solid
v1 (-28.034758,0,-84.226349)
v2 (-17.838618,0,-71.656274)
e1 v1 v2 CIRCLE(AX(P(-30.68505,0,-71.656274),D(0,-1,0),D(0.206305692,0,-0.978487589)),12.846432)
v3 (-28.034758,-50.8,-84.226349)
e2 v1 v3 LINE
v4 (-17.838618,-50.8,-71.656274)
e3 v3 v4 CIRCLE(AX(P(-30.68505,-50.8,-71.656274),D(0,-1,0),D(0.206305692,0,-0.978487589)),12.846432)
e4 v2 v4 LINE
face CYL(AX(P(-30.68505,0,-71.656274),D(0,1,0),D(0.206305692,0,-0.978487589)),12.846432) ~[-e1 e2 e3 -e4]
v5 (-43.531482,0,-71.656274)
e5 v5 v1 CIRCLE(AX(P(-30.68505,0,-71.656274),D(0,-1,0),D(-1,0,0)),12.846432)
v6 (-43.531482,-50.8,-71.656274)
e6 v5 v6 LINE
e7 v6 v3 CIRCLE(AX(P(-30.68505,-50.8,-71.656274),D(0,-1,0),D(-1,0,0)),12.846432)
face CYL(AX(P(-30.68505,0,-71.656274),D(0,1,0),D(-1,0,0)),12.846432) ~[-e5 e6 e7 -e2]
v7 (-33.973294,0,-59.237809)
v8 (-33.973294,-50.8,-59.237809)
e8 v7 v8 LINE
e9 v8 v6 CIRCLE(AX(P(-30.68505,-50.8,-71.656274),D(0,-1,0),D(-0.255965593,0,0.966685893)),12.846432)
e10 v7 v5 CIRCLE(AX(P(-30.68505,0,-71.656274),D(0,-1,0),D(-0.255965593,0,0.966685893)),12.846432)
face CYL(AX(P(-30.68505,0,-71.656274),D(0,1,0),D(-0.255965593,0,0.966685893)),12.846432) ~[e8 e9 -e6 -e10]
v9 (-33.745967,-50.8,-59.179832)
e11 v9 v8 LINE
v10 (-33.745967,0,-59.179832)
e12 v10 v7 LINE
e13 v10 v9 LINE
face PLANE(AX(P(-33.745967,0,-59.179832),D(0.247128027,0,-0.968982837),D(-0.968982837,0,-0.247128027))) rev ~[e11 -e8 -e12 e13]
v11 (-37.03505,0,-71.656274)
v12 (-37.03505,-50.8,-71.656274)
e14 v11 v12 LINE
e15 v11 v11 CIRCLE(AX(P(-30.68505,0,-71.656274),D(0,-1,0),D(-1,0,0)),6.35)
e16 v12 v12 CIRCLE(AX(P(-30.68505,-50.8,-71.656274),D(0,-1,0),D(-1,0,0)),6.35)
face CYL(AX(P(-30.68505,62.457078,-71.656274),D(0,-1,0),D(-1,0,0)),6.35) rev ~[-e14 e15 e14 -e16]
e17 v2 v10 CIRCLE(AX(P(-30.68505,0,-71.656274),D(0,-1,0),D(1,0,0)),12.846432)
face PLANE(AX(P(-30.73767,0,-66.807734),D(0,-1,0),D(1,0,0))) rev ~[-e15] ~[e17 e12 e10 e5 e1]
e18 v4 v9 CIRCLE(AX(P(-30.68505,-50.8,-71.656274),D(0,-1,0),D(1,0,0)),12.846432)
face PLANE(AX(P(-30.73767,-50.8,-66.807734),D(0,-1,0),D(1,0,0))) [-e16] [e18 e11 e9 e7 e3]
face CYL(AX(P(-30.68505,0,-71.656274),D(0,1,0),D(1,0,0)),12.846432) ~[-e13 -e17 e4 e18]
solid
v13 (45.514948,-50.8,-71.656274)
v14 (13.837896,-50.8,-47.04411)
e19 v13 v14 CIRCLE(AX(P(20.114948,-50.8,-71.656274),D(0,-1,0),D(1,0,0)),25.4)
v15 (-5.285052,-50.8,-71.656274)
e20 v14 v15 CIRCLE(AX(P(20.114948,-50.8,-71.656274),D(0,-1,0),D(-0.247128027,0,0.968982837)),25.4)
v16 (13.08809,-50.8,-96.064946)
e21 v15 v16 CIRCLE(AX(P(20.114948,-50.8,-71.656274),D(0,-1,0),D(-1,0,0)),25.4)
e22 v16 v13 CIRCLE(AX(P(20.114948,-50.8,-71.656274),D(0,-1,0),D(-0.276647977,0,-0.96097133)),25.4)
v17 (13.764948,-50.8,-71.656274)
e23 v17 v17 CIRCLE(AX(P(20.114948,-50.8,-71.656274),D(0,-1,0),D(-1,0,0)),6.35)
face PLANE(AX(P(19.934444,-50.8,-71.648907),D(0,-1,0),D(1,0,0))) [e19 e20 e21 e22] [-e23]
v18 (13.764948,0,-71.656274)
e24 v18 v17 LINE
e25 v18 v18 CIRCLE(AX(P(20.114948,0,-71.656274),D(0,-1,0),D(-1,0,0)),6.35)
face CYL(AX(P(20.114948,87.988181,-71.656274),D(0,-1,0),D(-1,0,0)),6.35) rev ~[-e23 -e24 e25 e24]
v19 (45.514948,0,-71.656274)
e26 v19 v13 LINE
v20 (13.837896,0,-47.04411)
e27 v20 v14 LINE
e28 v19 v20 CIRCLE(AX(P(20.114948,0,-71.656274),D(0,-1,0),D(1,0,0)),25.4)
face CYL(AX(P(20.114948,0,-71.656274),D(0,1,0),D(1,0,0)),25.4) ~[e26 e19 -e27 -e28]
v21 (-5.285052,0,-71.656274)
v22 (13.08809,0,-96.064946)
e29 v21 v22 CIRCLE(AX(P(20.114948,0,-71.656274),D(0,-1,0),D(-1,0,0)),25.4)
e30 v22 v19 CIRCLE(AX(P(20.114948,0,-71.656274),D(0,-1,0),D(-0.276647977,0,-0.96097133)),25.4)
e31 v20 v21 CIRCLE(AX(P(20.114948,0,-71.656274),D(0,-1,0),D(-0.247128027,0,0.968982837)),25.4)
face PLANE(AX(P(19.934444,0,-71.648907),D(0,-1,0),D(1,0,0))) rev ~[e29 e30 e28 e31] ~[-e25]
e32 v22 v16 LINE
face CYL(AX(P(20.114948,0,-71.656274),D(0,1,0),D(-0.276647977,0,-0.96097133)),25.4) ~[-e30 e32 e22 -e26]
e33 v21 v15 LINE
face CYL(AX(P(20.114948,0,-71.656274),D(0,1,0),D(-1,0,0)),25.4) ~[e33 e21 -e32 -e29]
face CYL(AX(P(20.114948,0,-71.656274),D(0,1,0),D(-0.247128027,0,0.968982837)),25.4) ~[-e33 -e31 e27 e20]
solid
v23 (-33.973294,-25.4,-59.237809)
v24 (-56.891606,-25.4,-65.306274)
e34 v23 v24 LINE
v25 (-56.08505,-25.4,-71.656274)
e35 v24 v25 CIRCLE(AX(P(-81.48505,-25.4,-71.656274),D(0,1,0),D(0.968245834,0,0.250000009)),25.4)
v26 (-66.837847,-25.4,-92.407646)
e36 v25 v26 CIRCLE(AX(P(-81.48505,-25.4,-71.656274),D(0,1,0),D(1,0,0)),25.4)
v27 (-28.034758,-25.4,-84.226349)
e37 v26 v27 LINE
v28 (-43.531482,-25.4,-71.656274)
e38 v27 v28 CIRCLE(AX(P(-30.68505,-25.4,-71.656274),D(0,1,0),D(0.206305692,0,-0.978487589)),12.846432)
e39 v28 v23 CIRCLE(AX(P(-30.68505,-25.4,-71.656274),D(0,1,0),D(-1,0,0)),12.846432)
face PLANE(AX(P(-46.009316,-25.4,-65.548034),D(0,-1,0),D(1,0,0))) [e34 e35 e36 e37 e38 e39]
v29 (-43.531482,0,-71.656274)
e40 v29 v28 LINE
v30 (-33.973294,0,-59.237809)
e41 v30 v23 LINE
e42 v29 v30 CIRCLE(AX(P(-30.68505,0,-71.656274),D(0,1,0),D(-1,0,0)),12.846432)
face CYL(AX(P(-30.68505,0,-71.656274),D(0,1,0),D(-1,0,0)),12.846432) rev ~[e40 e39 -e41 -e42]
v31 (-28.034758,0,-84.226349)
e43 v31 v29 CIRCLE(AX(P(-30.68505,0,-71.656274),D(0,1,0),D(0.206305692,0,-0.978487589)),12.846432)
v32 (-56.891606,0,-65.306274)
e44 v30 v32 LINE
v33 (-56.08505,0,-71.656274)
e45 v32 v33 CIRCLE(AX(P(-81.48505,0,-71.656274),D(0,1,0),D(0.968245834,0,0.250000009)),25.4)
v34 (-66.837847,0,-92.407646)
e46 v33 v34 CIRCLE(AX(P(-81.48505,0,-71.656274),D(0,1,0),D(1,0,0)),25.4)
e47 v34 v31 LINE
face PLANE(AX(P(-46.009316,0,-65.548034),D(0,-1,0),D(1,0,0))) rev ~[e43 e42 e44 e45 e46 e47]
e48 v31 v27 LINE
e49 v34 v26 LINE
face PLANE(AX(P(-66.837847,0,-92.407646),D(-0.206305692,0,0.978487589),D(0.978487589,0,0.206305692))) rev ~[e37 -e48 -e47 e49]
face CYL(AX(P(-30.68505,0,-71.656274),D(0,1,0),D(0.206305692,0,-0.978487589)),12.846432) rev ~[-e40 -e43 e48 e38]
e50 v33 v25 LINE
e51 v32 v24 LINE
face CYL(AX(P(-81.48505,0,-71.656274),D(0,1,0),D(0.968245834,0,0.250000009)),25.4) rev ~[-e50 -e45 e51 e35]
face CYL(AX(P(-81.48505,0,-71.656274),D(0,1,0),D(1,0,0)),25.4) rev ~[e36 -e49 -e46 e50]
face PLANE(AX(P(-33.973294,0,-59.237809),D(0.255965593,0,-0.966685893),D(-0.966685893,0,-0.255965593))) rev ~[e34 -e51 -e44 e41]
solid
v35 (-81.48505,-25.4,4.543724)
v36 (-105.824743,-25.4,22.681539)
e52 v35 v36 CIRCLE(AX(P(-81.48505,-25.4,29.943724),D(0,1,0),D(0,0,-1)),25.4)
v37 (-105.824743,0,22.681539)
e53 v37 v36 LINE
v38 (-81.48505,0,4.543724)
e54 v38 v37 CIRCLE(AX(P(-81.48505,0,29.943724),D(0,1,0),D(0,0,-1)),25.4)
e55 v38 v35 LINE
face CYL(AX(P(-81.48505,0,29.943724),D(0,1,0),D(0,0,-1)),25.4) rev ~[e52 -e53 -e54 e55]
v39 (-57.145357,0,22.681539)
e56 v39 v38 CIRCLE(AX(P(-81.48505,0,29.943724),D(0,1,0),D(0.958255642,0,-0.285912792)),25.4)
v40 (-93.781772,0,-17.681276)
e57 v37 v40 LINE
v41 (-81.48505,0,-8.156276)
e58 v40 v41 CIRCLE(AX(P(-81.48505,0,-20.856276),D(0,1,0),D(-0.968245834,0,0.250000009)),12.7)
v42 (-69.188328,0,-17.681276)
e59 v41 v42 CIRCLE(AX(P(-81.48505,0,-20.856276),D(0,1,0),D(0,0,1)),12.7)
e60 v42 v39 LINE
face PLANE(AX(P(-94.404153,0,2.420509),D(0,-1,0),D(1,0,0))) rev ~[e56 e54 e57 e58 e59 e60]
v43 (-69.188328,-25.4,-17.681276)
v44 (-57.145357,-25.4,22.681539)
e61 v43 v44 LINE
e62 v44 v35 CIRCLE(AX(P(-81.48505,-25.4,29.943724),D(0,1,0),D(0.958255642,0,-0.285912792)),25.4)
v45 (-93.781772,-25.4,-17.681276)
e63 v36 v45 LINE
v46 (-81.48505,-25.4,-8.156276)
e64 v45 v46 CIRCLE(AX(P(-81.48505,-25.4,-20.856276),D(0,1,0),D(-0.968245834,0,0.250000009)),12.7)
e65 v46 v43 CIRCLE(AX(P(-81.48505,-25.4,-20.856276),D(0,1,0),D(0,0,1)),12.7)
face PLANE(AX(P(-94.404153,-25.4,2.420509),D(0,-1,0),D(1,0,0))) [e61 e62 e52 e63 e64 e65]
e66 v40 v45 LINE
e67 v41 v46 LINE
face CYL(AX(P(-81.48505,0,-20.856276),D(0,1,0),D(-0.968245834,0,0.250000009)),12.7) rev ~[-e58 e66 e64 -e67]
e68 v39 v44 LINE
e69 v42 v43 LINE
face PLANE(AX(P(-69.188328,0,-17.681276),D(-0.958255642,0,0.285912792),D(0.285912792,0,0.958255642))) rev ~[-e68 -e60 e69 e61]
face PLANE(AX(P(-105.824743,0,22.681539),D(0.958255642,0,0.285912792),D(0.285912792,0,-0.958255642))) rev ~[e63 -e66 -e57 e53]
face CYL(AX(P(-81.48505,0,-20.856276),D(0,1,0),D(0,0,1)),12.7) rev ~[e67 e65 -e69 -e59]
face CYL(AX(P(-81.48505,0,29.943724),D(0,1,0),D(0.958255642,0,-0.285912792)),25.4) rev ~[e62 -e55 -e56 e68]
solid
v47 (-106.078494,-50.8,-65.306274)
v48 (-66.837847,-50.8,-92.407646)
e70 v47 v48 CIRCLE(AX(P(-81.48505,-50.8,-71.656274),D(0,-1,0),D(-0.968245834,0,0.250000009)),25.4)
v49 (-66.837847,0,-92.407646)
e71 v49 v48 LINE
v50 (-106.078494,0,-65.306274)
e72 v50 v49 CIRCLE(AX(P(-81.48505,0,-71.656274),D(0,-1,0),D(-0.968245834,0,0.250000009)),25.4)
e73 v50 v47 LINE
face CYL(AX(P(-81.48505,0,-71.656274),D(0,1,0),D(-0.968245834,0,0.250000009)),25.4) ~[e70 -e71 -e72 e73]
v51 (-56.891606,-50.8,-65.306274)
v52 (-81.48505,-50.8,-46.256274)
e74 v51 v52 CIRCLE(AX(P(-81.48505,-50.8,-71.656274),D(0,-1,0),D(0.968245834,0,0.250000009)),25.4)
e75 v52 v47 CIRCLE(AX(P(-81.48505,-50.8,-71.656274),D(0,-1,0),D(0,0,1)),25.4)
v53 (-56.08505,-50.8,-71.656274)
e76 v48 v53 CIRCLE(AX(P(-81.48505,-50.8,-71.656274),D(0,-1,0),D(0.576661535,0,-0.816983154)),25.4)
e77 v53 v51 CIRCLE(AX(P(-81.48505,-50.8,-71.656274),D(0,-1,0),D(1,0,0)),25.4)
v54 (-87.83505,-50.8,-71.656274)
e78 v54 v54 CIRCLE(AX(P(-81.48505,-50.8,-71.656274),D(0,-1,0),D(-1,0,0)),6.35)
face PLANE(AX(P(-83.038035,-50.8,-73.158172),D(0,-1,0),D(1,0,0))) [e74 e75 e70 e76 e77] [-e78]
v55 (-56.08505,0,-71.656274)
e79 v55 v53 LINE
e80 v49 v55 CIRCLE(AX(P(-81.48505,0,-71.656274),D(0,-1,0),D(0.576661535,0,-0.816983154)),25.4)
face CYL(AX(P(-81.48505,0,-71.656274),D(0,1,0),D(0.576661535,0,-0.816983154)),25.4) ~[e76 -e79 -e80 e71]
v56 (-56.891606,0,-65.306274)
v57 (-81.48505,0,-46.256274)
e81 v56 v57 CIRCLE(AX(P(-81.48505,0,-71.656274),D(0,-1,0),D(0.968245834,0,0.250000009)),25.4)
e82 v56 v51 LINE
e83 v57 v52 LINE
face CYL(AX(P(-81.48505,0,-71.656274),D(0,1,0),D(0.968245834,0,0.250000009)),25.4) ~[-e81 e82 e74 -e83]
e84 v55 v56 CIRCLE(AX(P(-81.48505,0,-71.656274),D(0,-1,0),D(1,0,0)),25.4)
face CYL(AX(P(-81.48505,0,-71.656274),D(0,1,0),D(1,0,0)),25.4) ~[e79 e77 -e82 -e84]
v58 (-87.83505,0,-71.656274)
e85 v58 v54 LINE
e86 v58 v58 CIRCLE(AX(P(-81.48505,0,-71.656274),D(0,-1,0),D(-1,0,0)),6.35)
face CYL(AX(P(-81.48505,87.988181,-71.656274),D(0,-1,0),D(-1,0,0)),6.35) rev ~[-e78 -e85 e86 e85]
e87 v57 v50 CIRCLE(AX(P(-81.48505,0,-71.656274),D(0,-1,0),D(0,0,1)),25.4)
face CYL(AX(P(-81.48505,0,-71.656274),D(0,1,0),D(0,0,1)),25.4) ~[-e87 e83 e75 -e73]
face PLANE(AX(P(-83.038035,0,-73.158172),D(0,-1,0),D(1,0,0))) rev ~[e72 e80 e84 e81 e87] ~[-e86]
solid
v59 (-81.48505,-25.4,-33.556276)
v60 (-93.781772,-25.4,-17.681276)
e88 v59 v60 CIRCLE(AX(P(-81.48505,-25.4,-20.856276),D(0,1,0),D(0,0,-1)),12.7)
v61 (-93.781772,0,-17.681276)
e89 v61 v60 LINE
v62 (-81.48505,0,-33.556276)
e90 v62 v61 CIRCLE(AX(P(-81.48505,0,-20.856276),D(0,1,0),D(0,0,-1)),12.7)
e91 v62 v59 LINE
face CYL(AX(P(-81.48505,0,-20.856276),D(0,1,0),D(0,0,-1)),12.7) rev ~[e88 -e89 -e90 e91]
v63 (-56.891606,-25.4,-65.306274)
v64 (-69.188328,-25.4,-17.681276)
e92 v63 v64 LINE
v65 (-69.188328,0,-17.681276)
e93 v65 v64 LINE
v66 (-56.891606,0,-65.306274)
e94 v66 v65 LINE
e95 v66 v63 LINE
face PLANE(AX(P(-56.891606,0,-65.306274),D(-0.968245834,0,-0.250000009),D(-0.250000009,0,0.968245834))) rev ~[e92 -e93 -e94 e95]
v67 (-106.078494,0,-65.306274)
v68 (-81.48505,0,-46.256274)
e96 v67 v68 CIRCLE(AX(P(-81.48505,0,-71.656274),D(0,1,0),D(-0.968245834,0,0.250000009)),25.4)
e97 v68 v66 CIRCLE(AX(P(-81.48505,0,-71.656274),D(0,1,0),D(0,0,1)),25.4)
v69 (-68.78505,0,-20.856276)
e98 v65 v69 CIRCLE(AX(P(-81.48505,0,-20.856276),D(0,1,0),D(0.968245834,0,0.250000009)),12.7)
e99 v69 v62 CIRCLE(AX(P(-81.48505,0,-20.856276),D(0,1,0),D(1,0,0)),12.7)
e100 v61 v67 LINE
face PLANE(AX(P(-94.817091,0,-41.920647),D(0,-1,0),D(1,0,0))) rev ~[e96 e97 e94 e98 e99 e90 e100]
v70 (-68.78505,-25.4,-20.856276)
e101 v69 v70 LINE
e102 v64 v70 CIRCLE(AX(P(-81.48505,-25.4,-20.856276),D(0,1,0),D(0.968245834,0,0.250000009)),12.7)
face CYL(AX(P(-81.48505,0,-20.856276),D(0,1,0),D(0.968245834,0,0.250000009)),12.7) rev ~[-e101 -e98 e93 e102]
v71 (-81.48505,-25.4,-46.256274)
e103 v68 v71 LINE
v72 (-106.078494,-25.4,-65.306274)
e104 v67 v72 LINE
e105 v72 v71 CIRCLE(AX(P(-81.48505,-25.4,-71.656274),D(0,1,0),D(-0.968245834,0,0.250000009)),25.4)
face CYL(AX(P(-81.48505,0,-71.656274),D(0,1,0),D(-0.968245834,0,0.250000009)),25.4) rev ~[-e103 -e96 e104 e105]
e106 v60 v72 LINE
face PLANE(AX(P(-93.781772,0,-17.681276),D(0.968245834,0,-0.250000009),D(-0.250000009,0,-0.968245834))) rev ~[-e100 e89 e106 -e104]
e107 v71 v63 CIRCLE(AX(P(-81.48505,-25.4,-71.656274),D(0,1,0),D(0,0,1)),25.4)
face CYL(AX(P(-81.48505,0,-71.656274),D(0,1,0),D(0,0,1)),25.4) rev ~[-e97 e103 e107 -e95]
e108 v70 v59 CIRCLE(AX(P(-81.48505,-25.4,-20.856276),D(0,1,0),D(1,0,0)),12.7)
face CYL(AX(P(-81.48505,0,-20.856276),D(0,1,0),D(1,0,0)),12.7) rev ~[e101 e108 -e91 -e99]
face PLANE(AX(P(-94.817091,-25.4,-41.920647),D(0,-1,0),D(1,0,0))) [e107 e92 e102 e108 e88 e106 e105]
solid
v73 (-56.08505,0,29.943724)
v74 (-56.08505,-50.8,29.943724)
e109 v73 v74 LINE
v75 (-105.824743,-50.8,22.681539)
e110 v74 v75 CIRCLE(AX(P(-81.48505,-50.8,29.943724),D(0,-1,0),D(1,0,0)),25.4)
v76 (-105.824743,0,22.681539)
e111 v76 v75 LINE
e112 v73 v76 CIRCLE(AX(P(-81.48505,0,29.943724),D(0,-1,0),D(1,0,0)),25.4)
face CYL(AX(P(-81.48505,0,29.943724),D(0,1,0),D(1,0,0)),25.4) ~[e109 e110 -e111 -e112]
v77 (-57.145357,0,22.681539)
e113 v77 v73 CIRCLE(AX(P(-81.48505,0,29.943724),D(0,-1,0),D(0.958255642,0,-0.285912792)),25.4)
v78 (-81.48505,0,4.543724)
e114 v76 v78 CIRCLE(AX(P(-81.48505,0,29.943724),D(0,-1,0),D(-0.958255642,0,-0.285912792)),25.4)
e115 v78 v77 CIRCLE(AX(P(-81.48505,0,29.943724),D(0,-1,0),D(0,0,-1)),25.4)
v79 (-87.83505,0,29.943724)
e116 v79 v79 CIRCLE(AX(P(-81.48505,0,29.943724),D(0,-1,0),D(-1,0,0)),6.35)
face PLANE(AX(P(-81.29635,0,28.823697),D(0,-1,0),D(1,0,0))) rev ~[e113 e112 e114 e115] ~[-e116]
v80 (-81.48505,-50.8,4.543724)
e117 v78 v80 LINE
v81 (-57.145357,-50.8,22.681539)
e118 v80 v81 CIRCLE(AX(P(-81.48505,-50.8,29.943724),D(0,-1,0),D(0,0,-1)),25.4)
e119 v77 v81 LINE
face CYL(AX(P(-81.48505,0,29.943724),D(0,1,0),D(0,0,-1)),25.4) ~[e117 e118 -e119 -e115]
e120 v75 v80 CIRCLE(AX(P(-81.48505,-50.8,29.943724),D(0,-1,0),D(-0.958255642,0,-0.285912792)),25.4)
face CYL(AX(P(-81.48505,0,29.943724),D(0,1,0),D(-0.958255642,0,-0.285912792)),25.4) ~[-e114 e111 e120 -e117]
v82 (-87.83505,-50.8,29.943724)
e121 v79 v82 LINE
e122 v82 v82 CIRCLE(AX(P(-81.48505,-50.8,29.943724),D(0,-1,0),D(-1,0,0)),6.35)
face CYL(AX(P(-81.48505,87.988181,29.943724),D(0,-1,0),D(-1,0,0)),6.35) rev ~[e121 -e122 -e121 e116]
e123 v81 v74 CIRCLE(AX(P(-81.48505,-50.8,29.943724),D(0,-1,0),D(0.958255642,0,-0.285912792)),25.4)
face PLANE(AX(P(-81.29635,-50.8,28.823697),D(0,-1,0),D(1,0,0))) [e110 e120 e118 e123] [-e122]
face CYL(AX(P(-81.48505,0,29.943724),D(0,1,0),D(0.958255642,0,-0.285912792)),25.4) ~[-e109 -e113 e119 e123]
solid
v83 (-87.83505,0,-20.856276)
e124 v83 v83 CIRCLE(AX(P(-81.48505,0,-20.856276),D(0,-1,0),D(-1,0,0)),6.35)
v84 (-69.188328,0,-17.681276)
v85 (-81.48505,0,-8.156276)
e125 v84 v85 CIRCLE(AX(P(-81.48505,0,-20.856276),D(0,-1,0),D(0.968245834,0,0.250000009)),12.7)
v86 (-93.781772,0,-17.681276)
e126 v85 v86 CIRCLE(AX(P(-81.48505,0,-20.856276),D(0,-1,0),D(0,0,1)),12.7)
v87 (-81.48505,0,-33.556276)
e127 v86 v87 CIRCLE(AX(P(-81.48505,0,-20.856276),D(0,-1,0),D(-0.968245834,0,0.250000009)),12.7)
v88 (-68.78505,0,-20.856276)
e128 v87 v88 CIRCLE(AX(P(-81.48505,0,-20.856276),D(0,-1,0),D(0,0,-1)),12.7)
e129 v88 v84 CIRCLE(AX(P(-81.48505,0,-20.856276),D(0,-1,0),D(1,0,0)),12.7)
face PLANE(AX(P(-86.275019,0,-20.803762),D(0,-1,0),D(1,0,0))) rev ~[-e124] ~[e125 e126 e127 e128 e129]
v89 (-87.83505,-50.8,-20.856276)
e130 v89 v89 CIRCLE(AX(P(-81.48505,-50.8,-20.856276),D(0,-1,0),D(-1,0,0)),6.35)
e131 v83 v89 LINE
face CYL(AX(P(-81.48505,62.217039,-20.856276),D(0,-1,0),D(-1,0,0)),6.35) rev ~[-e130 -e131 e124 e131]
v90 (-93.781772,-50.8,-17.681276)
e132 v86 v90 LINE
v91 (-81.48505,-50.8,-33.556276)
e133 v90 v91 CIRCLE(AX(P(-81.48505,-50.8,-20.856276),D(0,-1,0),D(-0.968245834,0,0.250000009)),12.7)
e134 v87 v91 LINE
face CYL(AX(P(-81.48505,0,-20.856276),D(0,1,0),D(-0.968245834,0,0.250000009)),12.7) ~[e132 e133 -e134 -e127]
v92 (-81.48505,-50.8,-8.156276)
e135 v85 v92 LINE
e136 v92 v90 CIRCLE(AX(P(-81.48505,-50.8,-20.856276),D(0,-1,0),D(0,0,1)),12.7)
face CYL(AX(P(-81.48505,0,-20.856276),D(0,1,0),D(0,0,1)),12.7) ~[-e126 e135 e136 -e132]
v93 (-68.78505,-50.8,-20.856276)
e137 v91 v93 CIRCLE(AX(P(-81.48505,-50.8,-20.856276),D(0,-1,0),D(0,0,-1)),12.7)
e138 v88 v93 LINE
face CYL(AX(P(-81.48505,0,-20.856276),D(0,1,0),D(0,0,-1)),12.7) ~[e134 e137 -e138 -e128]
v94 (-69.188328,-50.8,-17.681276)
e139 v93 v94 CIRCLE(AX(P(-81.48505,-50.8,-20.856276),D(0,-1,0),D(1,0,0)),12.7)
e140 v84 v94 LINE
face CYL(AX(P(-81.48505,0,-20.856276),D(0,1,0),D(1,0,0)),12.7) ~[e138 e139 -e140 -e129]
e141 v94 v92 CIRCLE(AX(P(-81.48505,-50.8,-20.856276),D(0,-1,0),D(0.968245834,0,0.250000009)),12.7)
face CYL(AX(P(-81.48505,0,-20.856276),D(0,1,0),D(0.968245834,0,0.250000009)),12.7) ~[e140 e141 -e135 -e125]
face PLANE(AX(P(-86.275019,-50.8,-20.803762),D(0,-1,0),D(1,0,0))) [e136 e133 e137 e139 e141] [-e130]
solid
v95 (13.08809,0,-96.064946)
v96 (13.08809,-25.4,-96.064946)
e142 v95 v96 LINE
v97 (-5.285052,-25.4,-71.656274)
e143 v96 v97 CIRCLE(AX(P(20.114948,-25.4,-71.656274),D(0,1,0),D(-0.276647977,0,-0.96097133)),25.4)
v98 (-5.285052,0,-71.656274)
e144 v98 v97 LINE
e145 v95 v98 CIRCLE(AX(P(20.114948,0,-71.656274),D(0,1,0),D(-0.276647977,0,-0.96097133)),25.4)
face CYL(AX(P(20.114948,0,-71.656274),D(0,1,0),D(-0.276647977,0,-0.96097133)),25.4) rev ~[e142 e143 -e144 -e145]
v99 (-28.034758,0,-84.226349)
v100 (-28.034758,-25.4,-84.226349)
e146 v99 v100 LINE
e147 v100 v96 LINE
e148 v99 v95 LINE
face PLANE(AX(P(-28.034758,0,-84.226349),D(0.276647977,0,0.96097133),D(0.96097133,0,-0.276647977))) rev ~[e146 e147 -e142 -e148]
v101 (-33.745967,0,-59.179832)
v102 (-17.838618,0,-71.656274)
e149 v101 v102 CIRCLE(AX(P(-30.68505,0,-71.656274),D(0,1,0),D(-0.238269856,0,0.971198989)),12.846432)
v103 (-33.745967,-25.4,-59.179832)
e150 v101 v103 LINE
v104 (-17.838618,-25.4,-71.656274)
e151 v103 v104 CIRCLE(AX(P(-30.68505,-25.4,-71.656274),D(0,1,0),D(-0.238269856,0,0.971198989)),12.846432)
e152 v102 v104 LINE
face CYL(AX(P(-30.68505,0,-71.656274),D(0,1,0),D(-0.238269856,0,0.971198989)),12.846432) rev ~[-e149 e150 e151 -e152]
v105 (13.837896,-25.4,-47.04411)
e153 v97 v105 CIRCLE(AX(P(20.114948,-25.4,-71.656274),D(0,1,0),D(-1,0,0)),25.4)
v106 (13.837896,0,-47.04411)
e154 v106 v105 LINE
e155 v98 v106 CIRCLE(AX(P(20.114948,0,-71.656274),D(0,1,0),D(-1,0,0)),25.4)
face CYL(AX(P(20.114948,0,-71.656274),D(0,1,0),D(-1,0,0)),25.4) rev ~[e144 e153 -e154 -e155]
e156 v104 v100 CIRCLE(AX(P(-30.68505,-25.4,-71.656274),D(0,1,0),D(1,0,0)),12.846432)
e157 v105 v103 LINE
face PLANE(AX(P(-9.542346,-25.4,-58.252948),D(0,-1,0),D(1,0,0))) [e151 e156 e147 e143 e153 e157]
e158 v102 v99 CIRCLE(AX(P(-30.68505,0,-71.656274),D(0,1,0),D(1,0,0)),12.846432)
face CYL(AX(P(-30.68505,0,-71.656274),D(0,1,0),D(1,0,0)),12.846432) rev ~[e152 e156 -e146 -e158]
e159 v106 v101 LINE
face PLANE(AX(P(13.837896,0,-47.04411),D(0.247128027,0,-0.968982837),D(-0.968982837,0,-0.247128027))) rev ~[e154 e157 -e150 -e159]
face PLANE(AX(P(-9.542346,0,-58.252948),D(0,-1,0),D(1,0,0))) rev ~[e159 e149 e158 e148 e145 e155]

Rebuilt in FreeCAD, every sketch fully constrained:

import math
import FreeCAD as App
import Part
import Sketcher
from FreeCAD import Vector
Q = App.Units.Quantity

doc = App.newDocument("Part")
body = doc.addObject("PartDesign::Body", "Body")

sketch1 = body.newObject("Sketcher::SketchObject", "Sketch")
sketch1.AttachmentSupport = (doc.getObject("XZ_Plane"), [""])
sketch1.MapMode = "FlatFace"
sketch1.addGeometry([
    Part.ArcOfCircle(Part.Circle(Vector(-81.48505, 29.943724, 0), Vector(0, 0, 1), 25.4), math.radians(-90), math.radians(-16.613418)),
    Part.ArcOfCircle(Part.Circle(Vector(-81.48505, 29.943724, 0), Vector(0, 0, 1), 25.4), math.radians(-16.613418), math.radians(0)),
    Part.ArcOfCircle(Part.Circle(Vector(-81.48505, 29.943724, 0), Vector(0, 0, 1), 25.4), math.radians(0), math.radians(196.613418)),
    Part.ArcOfCircle(Part.Circle(Vector(-81.48505, 29.943724, 0), Vector(0, 0, 1), 25.4), math.radians(-163.386582), math.radians(-90)),
], False)
sketch1.addConstraint([
    Sketcher.Constraint("Tangent", 0, 2, 1, 1),
    Sketcher.Constraint("Tangent", 1, 2, 2, 1),
    Sketcher.Constraint("Tangent", 2, 2, 3, 1),
    Sketcher.Constraint("Tangent", 3, 2, 0, 1),
    Sketcher.Constraint("Equal", 0, 1),
    Sketcher.Constraint("Horizontal", 3, 3, 1, 2),
    Sketcher.Constraint("Horizontal", 0, 2, 2, 2),
    Sketcher.Constraint("Vertical", 2, 3, 3, 2),
    Sketcher.Constraint("Radius", 0, Q("1 in")),
    Sketcher.Constraint("DistanceX", 0, 3, -1, 1, 81.48505),
    Sketcher.Constraint("DistanceY", -1, 1, 0, 2, 22.681539),
    Sketcher.Constraint("DistanceY", -1, 1, 0, 3, 29.943724),
])
pad1 = body.newObject("PartDesign::Pad", "Pad")
pad1.Profile = sketch1
pad1.Length = Q("2 in")

sketch2 = body.newObject("Sketcher::SketchObject", "Sketch001")
sketch2.AttachmentSupport = (doc.getObject("XZ_Plane"), [""])
sketch2.MapMode = "FlatFace"
sketch2.addGeometry([
    Part.Circle(Vector(-81.48505, 29.943724, 0), Vector(0, 0, 1), 6.35),
    Part.Circle(Vector(-81.48505, -20.856276, 0), Vector(0, 0, 1), 6.35),
    Part.Circle(Vector(-81.48505, -71.656274, 0), Vector(0, 0, 1), 6.35),
    Part.Circle(Vector(-30.68505, -71.656274, 0), Vector(0, 0, 1), 6.35),
    Part.Circle(Vector(20.114948, -71.656274, 0), Vector(0, 0, 1), 6.35),
], False)
sketch2.addConstraint([
    Sketcher.Constraint("Equal", 0, 1),
    Sketcher.Constraint("Equal", 1, 2),
    Sketcher.Constraint("Equal", 2, 3),
    Sketcher.Constraint("Equal", 3, 4),
    Sketcher.Constraint("Horizontal", 2, 3, 3, 3),
    Sketcher.Constraint("Horizontal", 3, 3, 4, 3),
    Sketcher.Constraint("Vertical", 0, 3, 1, 3),
    Sketcher.Constraint("Vertical", 1, 3, 2, 3),
    Sketcher.Constraint("Diameter", 0, Q("0.5 in")),
    Sketcher.Constraint("DistanceY", 1, 3, 0, 3, Q("2 in")),
    Sketcher.Constraint("DistanceY", 2, 3, 1, 3, Q("1.9999999 in")),
    Sketcher.Constraint("DistanceX", 2, 3, 3, 3, Q("2 in")),
    Sketcher.Constraint("DistanceX", 3, 3, 4, 3, Q("1.9999999 in")),
    Sketcher.Constraint("DistanceX", 0, 3, -1, 1, 81.48505),
    Sketcher.Constraint("DistanceY", -1, 1, 0, 3, 29.943724),
])
doc.recompute()
hole = body.newObject("PartDesign::Hole", "Hole")
hole.Profile = sketch2
hole.ThreadType = "None"
hole.Diameter = Q("0.5 in")
hole.DepthType = "ThroughAll"
hole.Reversed = True
body2 = doc.addObject("PartDesign::Body", "Body001")

sketch3 = body2.newObject("Sketcher::SketchObject", "Sketch002")
sketch3.AttachmentSupport = (doc.getObject("XZ_Plane001"), [""])
sketch3.MapMode = "FlatFace"
sketch3.addGeometry([
    Part.ArcOfCircle(Part.Circle(Vector(-81.48505, -71.656274, 0), Vector(0, 0, 1), 25.4), math.radians(90), math.radians(165.522487)),
    Part.ArcOfCircle(Part.Circle(Vector(-81.48505, -71.656274, 0), Vector(0, 0, 1), 25.4), math.radians(165.522487), math.radians(305.216074)),
    Part.ArcOfCircle(Part.Circle(Vector(-81.48505, -71.656274, 0), Vector(0, 0, 1), 25.4), math.radians(-54.783926), math.radians(0)),
    Part.ArcOfCircle(Part.Circle(Vector(-81.48505, -71.656274, 0), Vector(0, 0, 1), 25.4), math.radians(0), math.radians(14.477513)),
    Part.ArcOfCircle(Part.Circle(Vector(-81.48505, -71.656274, 0), Vector(0, 0, 1), 25.4), math.radians(14.477513), math.radians(90)),
], False)
sketch3.addConstraint([
    Sketcher.Constraint("Tangent", 0, 2, 1, 1),
    Sketcher.Constraint("Tangent", 1, 2, 2, 1),
    Sketcher.Constraint("Tangent", 2, 2, 3, 1),
    Sketcher.Constraint("Tangent", 3, 2, 4, 1),
    Sketcher.Constraint("Tangent", 4, 2, 0, 1),
    Sketcher.Constraint("Coincident", 2, 3, 0, 3),
    Sketcher.Constraint("Horizontal", 4, 3, 2, 2),
    Sketcher.Constraint("Horizontal", 0, 2, 3, 2),
    Sketcher.Constraint("Vertical", 3, 3, 4, 2),
    Sketcher.Constraint("Radius", 0, Q("1 in")),
    Sketcher.Constraint("DistanceY", 3, 3, 0, 2, Q("0.25 in")),
    Sketcher.Constraint("DistanceX", 0, 3, -1, 1, 81.48505),
    Sketcher.Constraint("DistanceY", 0, 3, -1, 1, 71.656274),
    Sketcher.Constraint("DistanceX", 1, 2, -1, 1, 66.837847),
])
pad2 = body2.newObject("PartDesign::Pad", "Pad001")
pad2.Profile = sketch3
pad2.Length = Q("2 in")

sketch4 = body2.newObject("Sketcher::SketchObject", "Sketch003")
sketch4.AttachmentSupport = (doc.getObject("XZ_Plane001"), [""])
sketch4.MapMode = "FlatFace"
sketch4.addGeometry([
    Part.Circle(Vector(-81.48505, 29.943724, 0), Vector(0, 0, 1), 6.35),
    Part.Circle(Vector(-81.48505, -20.856276, 0), Vector(0, 0, 1), 6.35),
    Part.Circle(Vector(-81.48505, -71.656274, 0), Vector(0, 0, 1), 6.35),
    Part.Circle(Vector(-30.68505, -71.656274, 0), Vector(0, 0, 1), 6.35),
    Part.Circle(Vector(20.114948, -71.656274, 0), Vector(0, 0, 1), 6.35),
], False)
sketch4.addConstraint([
    Sketcher.Constraint("Equal", 0, 1),
    Sketcher.Constraint("Equal", 1, 2),
    Sketcher.Constraint("Equal", 2, 3),
    Sketcher.Constraint("Equal", 3, 4),
    Sketcher.Constraint("Horizontal", 2, 3, 3, 3),
    Sketcher.Constraint("Horizontal", 3, 3, 4, 3),
    Sketcher.Constraint("Vertical", 0, 3, 1, 3),
    Sketcher.Constraint("Vertical", 1, 3, 2, 3),
    Sketcher.Constraint("Diameter", 0, Q("0.5 in")),
    Sketcher.Constraint("DistanceY", 1, 3, 0, 3, Q("2 in")),
    Sketcher.Constraint("DistanceY", 2, 3, 1, 3, Q("1.9999999 in")),
    Sketcher.Constraint("DistanceX", 2, 3, 3, 3, Q("2 in")),
    Sketcher.Constraint("DistanceX", 3, 3, 4, 3, Q("1.9999999 in")),
    Sketcher.Constraint("DistanceX", 0, 3, -1, 1, 81.48505),
    Sketcher.Constraint("DistanceY", -1, 1, 0, 3, 29.943724),
])
doc.recompute()
hole2 = body2.newObject("PartDesign::Hole", "Hole001")
hole2.Profile = sketch4
hole2.ThreadType = "None"
hole2.Diameter = Q("0.5 in")
hole2.DepthType = "ThroughAll"
hole2.Reversed = True
body3 = doc.addObject("PartDesign::Body", "Body002")

sketch5 = body3.newObject("Sketcher::SketchObject", "Sketch004")
sketch5.AttachmentSupport = (doc.getObject("XZ_Plane002"), [""])
sketch5.MapMode = "FlatFace"
sketch5.addGeometry([
    Part.ArcOfCircle(Part.Circle(Vector(20.114948, -71.656274, 0), Vector(0, 0, 1), 25.4), math.radians(180), math.radians(253.939753)),
    Part.ArcOfCircle(Part.Circle(Vector(20.114948, -71.656274, 0), Vector(0, 0, 1), 25.4), math.radians(-106.060247), math.radians(0)),
    Part.ArcOfCircle(Part.Circle(Vector(20.114948, -71.656274, 0), Vector(0, 0, 1), 25.4), math.radians(0), math.radians(104.307628)),
    Part.ArcOfCircle(Part.Circle(Vector(20.114948, -71.656274, 0), Vector(0, 0, 1), 25.4), math.radians(104.307628), math.radians(180)),
], False)
sketch5.addConstraint([
    Sketcher.Constraint("Tangent", 0, 2, 1, 1),
    Sketcher.Constraint("Tangent", 1, 2, 2, 1),
    Sketcher.Constraint("Tangent", 2, 2, 3, 1),
    Sketcher.Constraint("Tangent", 3, 2, 0, 1),
    Sketcher.Constraint("Equal", 0, 1),
    Sketcher.Constraint("Horizontal", 3, 3, 1, 2),
    Sketcher.Constraint("Horizontal", 1, 2, 3, 2),
    Sketcher.Constraint("Radius", 0, Q("1 in")),
    Sketcher.Constraint("DistanceX", -1, 1, 0, 3, 20.114948),
    Sketcher.Constraint("DistanceX", -1, 1, 0, 2, 13.08809),
    Sketcher.Constraint("DistanceY", 2, 2, -1, 1, 47.04411),
    Sketcher.Constraint("DistanceX", 2, 2, 0, 3, 6.277052),
])
pad3 = body3.newObject("PartDesign::Pad", "Pad002")
pad3.Profile = sketch5
pad3.Length = Q("2 in")

sketch6 = body3.newObject("Sketcher::SketchObject", "Sketch005")
sketch6.AttachmentSupport = (doc.getObject("XZ_Plane002"), [""])
sketch6.MapMode = "FlatFace"
sketch6.addGeometry([
    Part.Circle(Vector(-81.48505, 29.943724, 0), Vector(0, 0, 1), 6.35),
    Part.Circle(Vector(-81.48505, -20.856276, 0), Vector(0, 0, 1), 6.35),
    Part.Circle(Vector(-81.48505, -71.656274, 0), Vector(0, 0, 1), 6.35),
    Part.Circle(Vector(-30.68505, -71.656274, 0), Vector(0, 0, 1), 6.35),
    Part.Circle(Vector(20.114948, -71.656274, 0), Vector(0, 0, 1), 6.35),
], False)
sketch6.addConstraint([
    Sketcher.Constraint("Equal", 0, 1),
    Sketcher.Constraint("Equal", 1, 2),
    Sketcher.Constraint("Equal", 2, 3),
    Sketcher.Constraint("Equal", 3, 4),
    Sketcher.Constraint("Horizontal", 2, 3, 3, 3),
    Sketcher.Constraint("Horizontal", 3, 3, 4, 3),
    Sketcher.Constraint("Vertical", 0, 3, 1, 3),
    Sketcher.Constraint("Vertical", 1, 3, 2, 3),
    Sketcher.Constraint("Diameter", 0, Q("0.5 in")),
    Sketcher.Constraint("DistanceY", 1, 3, 0, 3, Q("2 in")),
    Sketcher.Constraint("DistanceY", 2, 3, 1, 3, Q("1.9999999 in")),
    Sketcher.Constraint("DistanceX", 2, 3, 3, 3, Q("2 in")),
    Sketcher.Constraint("DistanceX", 3, 3, 4, 3, Q("1.9999999 in")),
    Sketcher.Constraint("DistanceX", 0, 3, -1, 1, 81.48505),
    Sketcher.Constraint("DistanceY", -1, 1, 0, 3, 29.943724),
])
doc.recompute()
hole3 = body3.newObject("PartDesign::Hole", "Hole002")
hole3.Profile = sketch6
hole3.ThreadType = "None"
hole3.Diameter = Q("0.5 in")
hole3.DepthType = "ThroughAll"
hole3.Reversed = True
body4 = doc.addObject("PartDesign::Body", "Body003")

sketch7 = body4.newObject("Sketcher::SketchObject", "Sketch006")
sketch7.AttachmentSupport = (doc.getObject("XZ_Plane003"), [""])
sketch7.MapMode = "FlatFace"
sketch7.addGeometry([
    Part.ArcOfCircle(Part.Circle(Vector(-81.48505, -20.856276, 0), Vector(0, 0, 1), 12.7), math.radians(165.522487), math.radians(270)),
    Part.ArcOfCircle(Part.Circle(Vector(-81.48505, -20.856276, 0), Vector(0, 0, 1), 12.7), math.radians(-90), math.radians(0)),
    Part.ArcOfCircle(Part.Circle(Vector(-81.48505, -20.856276, 0), Vector(0, 0, 1), 12.7), math.radians(0), math.radians(14.477513)),
    Part.ArcOfCircle(Part.Circle(Vector(-81.48505, -20.856276, 0), Vector(0, 0, 1), 12.7), math.radians(14.477513), math.radians(90)),
    Part.ArcOfCircle(Part.Circle(Vector(-81.48505, -20.856276, 0), Vector(0, 0, 1), 12.7), math.radians(90), math.radians(165.522487)),
], False)
sketch7.addConstraint([
    Sketcher.Constraint("Tangent", 0, 2, 1, 1),
    Sketcher.Constraint("Tangent", 1, 2, 2, 1),
    Sketcher.Constraint("Tangent", 2, 2, 3, 1),
    Sketcher.Constraint("Tangent", 3, 2, 4, 1),
    Sketcher.Constraint("Tangent", 4, 2, 0, 1),
    Sketcher.Constraint("Coincident", 2, 3, 0, 3),
    Sketcher.Constraint("Horizontal", 4, 3, 1, 2),
    Sketcher.Constraint("Horizontal", 2, 2, 4, 2),
    Sketcher.Constraint("Vertical", 4, 3, 0, 2),
    Sketcher.Constraint("Vertical", 0, 2, 3, 2),
    Sketcher.Constraint("Radius", 0, Q("0.5 in")),
    Sketcher.Constraint("DistanceY", 1, 2, 2, 2, Q("0.125 in")),
    Sketcher.Constraint("DistanceX", 0, 3, -1, 1, 81.48505),
    Sketcher.Constraint("DistanceY", 0, 3, -1, 1, 20.856276),
])
pad4 = body4.newObject("PartDesign::Pad", "Pad003")
pad4.Profile = sketch7
pad4.Length = Q("2 in")

sketch8 = body4.newObject("Sketcher::SketchObject", "Sketch007")
sketch8.AttachmentSupport = (doc.getObject("XZ_Plane003"), [""])
sketch8.MapMode = "FlatFace"
sketch8.addGeometry([
    Part.Circle(Vector(-81.48505, 29.943724, 0), Vector(0, 0, 1), 6.35),
    Part.Circle(Vector(-81.48505, -20.856276, 0), Vector(0, 0, 1), 6.35),
    Part.Circle(Vector(-81.48505, -71.656274, 0), Vector(0, 0, 1), 6.35),
    Part.Circle(Vector(-30.68505, -71.656274, 0), Vector(0, 0, 1), 6.35),
    Part.Circle(Vector(20.114948, -71.656274, 0), Vector(0, 0, 1), 6.35),
], False)
sketch8.addConstraint([
    Sketcher.Constraint("Equal", 0, 1),
    Sketcher.Constraint("Equal", 1, 2),
    Sketcher.Constraint("Equal", 2, 3),
    Sketcher.Constraint("Equal", 3, 4),
    Sketcher.Constraint("Horizontal", 2, 3, 3, 3),
    Sketcher.Constraint("Horizontal", 3, 3, 4, 3),
    Sketcher.Constraint("Vertical", 0, 3, 1, 3),
    Sketcher.Constraint("Vertical", 1, 3, 2, 3),
    Sketcher.Constraint("Diameter", 0, Q("0.5 in")),
    Sketcher.Constraint("DistanceY", 1, 3, 0, 3, Q("2 in")),
    Sketcher.Constraint("DistanceY", 2, 3, 1, 3, Q("1.9999999 in")),
    Sketcher.Constraint("DistanceX", 2, 3, 3, 3, Q("2 in")),
    Sketcher.Constraint("DistanceX", 3, 3, 4, 3, Q("1.9999999 in")),
    Sketcher.Constraint("DistanceX", 0, 3, -1, 1, 81.48505),
    Sketcher.Constraint("DistanceY", -1, 1, 0, 3, 29.943724),
])
doc.recompute()
hole4 = body4.newObject("PartDesign::Hole", "Hole003")
hole4.Profile = sketch8
hole4.ThreadType = "None"
hole4.Diameter = Q("0.5 in")
hole4.DepthType = "ThroughAll"
hole4.Reversed = True
body5 = doc.addObject("PartDesign::Body", "Body004")

sketch9 = body5.newObject("Sketcher::SketchObject", "Sketch008")
sketch9.AttachmentSupport = (doc.getObject("XZ_Plane004"), [""])
sketch9.MapMode = "FlatFace"
sketch9.addGeometry([
    Part.ArcOfCircle(Part.Circle(Vector(-30.68505, -71.656274, 0), Vector(0, 0, 1), 12.846432), math.radians(104.830809), math.radians(180)),
    Part.ArcOfCircle(Part.Circle(Vector(-30.68505, -71.656274, 0), Vector(0, 0, 1), 12.846432), math.radians(180), math.radians(281.905944)),
    Part.ArcOfCircle(Part.Circle(Vector(-30.68505, -71.656274, 0), Vector(0, 0, 1), 12.846432), math.radians(-78.094056), math.radians(0)),
    Part.ArcOfCircle(Part.Circle(Vector(-30.68505, -71.656274, 0), Vector(0, 0, 1), 12.846432), math.radians(0), math.radians(103.784448)),
    Part.LineSegment(Vector(-33.745967, -59.179832, 0), Vector(-33.973294, -59.237809, 0)),
], False)
sketch9.addConstraint([
    Sketcher.Constraint("Tangent", 0, 2, 1, 1),
    Sketcher.Constraint("Tangent", 1, 2, 2, 1),
    Sketcher.Constraint("Tangent", 2, 2, 3, 1),
    Sketcher.Constraint("Coincident", 3, 2, 4, 1),
    Sketcher.Constraint("Coincident", 4, 2, 0, 1),
    Sketcher.Constraint("Coincident", 2, 3, 0, 3),
    Sketcher.Constraint("Equal", 2, 3),
    Sketcher.Constraint("Horizontal", 3, 3, 0, 2),
    Sketcher.Constraint("Horizontal", 0, 2, 2, 2),
    Sketcher.Constraint("Radius", 0, 12.846432),
    Sketcher.Constraint("DistanceX", 0, 3, -1, 1, 30.68505),
    Sketcher.Constraint("DistanceY", 1, 2, -1, 1, 84.226349),
    Sketcher.Constraint("DistanceY", 4, 2, -1, 1, 59.237809),
    Sketcher.Constraint("DistanceX", 1, 2, 2, 2, 10.19614),
    Sketcher.Constraint("Distance", 4, 0.234604),
])
pad5 = body5.newObject("PartDesign::Pad", "Pad004")
pad5.Profile = sketch9
pad5.Length = Q("2 in")

sketch10 = body5.newObject("Sketcher::SketchObject", "Sketch009")
sketch10.AttachmentSupport = (doc.getObject("XZ_Plane004"), [""])
sketch10.MapMode = "FlatFace"
sketch10.addGeometry([
    Part.Circle(Vector(-81.48505, 29.943724, 0), Vector(0, 0, 1), 6.35),
    Part.Circle(Vector(-81.48505, -20.856276, 0), Vector(0, 0, 1), 6.35),
    Part.Circle(Vector(-81.48505, -71.656274, 0), Vector(0, 0, 1), 6.35),
    Part.Circle(Vector(-30.68505, -71.656274, 0), Vector(0, 0, 1), 6.35),
    Part.Circle(Vector(20.114948, -71.656274, 0), Vector(0, 0, 1), 6.35),
], False)
sketch10.addConstraint([
    Sketcher.Constraint("Equal", 0, 1),
    Sketcher.Constraint("Equal", 1, 2),
    Sketcher.Constraint("Equal", 2, 3),
    Sketcher.Constraint("Equal", 3, 4),
    Sketcher.Constraint("Horizontal", 2, 3, 3, 3),
    Sketcher.Constraint("Horizontal", 3, 3, 4, 3),
    Sketcher.Constraint("Vertical", 0, 3, 1, 3),
    Sketcher.Constraint("Vertical", 1, 3, 2, 3),
    Sketcher.Constraint("Diameter", 0, Q("0.5 in")),
    Sketcher.Constraint("DistanceY", 1, 3, 0, 3, Q("2 in")),
    Sketcher.Constraint("DistanceY", 2, 3, 1, 3, Q("1.9999999 in")),
    Sketcher.Constraint("DistanceX", 2, 3, 3, 3, Q("2 in")),
    Sketcher.Constraint("DistanceX", 3, 3, 4, 3, Q("1.9999999 in")),
    Sketcher.Constraint("DistanceX", 0, 3, -1, 1, 81.48505),
    Sketcher.Constraint("DistanceY", -1, 1, 0, 3, 29.943724),
])
doc.recompute()
hole5 = body5.newObject("PartDesign::Hole", "Hole004")
hole5.Profile = sketch10
hole5.ThreadType = "None"
hole5.Diameter = Q("0.5 in")
hole5.DepthType = "ThroughAll"
hole5.Reversed = True
body6 = doc.addObject("PartDesign::Body", "Body005")

sketch11 = body6.newObject("Sketcher::SketchObject", "Sketch010")
sketch11.AttachmentSupport = (doc.getObject("XZ_Plane005"), [""])
sketch11.MapMode = "FlatFace"
sketch11.addGeometry([
    Part.LineSegment(Vector(-105.824743, 22.681539, 0), Vector(-93.781772, -17.681276, 0)),
    Part.ArcOfCircle(Part.Circle(Vector(-81.48505, -20.856276, 0), Vector(0, 0, 1), 12.7), math.radians(90), math.radians(165.522487)),
    Part.ArcOfCircle(Part.Circle(Vector(-81.48505, -20.856276, 0), Vector(0, 0, 1), 12.7), math.radians(14.477513), math.radians(90)),
    Part.LineSegment(Vector(-69.188328, -17.681276, 0), Vector(-57.145357, 22.681539, 0)),
    Part.ArcOfCircle(Part.Circle(Vector(-81.48505, 29.943724, 0), Vector(0, 0, 1), 25.4), math.radians(-90), math.radians(-16.613418)),
    Part.ArcOfCircle(Part.Circle(Vector(-81.48505, 29.943724, 0), Vector(0, 0, 1), 25.4), math.radians(-163.386582), math.radians(-90)),
], False)
sketch11.addConstraint([
    Sketcher.Constraint("Coincident", 0, 2, 1, 2),
    Sketcher.Constraint("Tangent", 1, 1, 2, 2),
    Sketcher.Constraint("Coincident", 2, 1, 3, 1),
    Sketcher.Constraint("Tangent", 3, 2, 4, 2),
    Sketcher.Constraint("Tangent", 4, 1, 5, 2),
    Sketcher.Constraint("Tangent", 5, 1, 0, 1),
    Sketcher.Constraint("Equal", 1, 2),
    Sketcher.Constraint("Equal", 4, 5),
    Sketcher.Constraint("Horizontal", 0, 2, 2, 1),
    Sketcher.Constraint("Horizontal", 3, 2, 5, 1),
    Sketcher.Constraint("Vertical", 5, 3, 1, 1),
    Sketcher.Constraint("Vertical", 1, 1, 4, 1),
    Sketcher.Constraint("Radius", 4, Q("1 in")),
    Sketcher.Constraint("Radius", 1, Q("0.5 in")),
    Sketcher.Constraint("DistanceY", 1, 3, 4, 3, Q("2 in")),
    Sketcher.Constraint("DistanceY", 2, 3, 0, 2, Q("0.125 in")),
    Sketcher.Constraint("DistanceX", 1, 3, -1, 1, 81.48505),
    Sketcher.Constraint("DistanceY", -1, 1, 3, 2, 22.681539),
])
pad6 = body6.newObject("PartDesign::Pad", "Pad005")
pad6.Profile = sketch11
pad6.Length = Q("1 in")
body7 = doc.addObject("PartDesign::Body", "Body006")

sketch12 = body7.newObject("Sketcher::SketchObject", "Sketch011")
sketch12.AttachmentSupport = (doc.getObject("XZ_Plane006"), [""])
sketch12.MapMode = "FlatFace"
sketch12.addGeometry([
    Part.ArcOfCircle(Part.Circle(Vector(-81.48505, -71.656274, 0), Vector(0, 0, 1), 25.4), math.radians(90), math.radians(165.522487)),
    Part.ArcOfCircle(Part.Circle(Vector(-81.48505, -71.656274, 0), Vector(0, 0, 1), 25.4), math.radians(14.477513), math.radians(90)),
    Part.LineSegment(Vector(-56.891606, -65.306274, 0), Vector(-69.188328, -17.681276, 0)),
    Part.ArcOfCircle(Part.Circle(Vector(-81.48505, -20.856276, 0), Vector(0, 0, 1), 12.7), math.radians(0), math.radians(14.477513)),
    Part.ArcOfCircle(Part.Circle(Vector(-81.48505, -20.856276, 0), Vector(0, 0, 1), 12.7), math.radians(-90), math.radians(0)),
    Part.ArcOfCircle(Part.Circle(Vector(-81.48505, -20.856276, 0), Vector(0, 0, 1), 12.7), math.radians(165.522487), math.radians(270)),
    Part.LineSegment(Vector(-93.781772, -17.681276, 0), Vector(-106.078494, -65.306274, 0)),
], False)
sketch12.addConstraint([
    Sketcher.Constraint("Tangent", 0, 1, 1, 2),
    Sketcher.Constraint("Tangent", 1, 1, 2, 1),
    Sketcher.Constraint("Tangent", 2, 2, 3, 2),
    Sketcher.Constraint("Tangent", 3, 1, 4, 2),
    Sketcher.Constraint("Tangent", 4, 1, 5, 2),
    Sketcher.Constraint("Tangent", 5, 1, 6, 1),
    Sketcher.Constraint("Tangent", 6, 2, 0, 2),
    Sketcher.Constraint("Coincident", 5, 3, 3, 3),
    Sketcher.Constraint("Equal", 0, 1),
    Sketcher.Constraint("Horizontal", 5, 3, 3, 1),
    Sketcher.Constraint("Horizontal", 2, 2, 5, 1),
    Sketcher.Constraint("Vertical", 5, 3, 0, 1),
    Sketcher.Constraint("Vertical", 0, 1, 4, 1),
    Sketcher.Constraint("Radius", 0, Q("1 in")),
    Sketcher.Constraint("Radius", 3, Q("0.5 in")),
    Sketcher.Constraint("DistanceY", 0, 3, 3, 3, Q("1.9999999 in")),
    Sketcher.Constraint("DistanceX", 0, 3, -1, 1, 81.48505),
    Sketcher.Constraint("DistanceY", 0, 3, -1, 1, 71.656274),
])
pad7 = body7.newObject("PartDesign::Pad", "Pad006")
pad7.Profile = sketch12
pad7.Length = Q("1 in")
body8 = doc.addObject("PartDesign::Body", "Body007")

sketch13 = body8.newObject("Sketcher::SketchObject", "Sketch012")
sketch13.AttachmentSupport = (doc.getObject("XZ_Plane007"), [""])
sketch13.MapMode = "FlatFace"
sketch13.addGeometry([
    Part.ArcOfCircle(Part.Circle(Vector(-81.48505, -71.656274, 0), Vector(0, 0, 1), 25.4), math.radians(0), math.radians(14.477513)),
    Part.ArcOfCircle(Part.Circle(Vector(-81.48505, -71.656274, 0), Vector(0, 0, 1), 25.4), math.radians(-54.783926), math.radians(0)),
    Part.LineSegment(Vector(-66.837847, -92.407646, 0), Vector(-28.034758, -84.226349, 0)),
    Part.ArcOfCircle(Part.Circle(Vector(-30.68505, -71.656274, 0), Vector(0, 0, 1), 12.846432), math.radians(180), math.radians(281.905944)),
    Part.ArcOfCircle(Part.Circle(Vector(-30.68505, -71.656274, 0), Vector(0, 0, 1), 12.846432), math.radians(104.830809), math.radians(180)),
    Part.LineSegment(Vector(-33.973294, -59.237809, 0), Vector(-56.891606, -65.306274, 0)),
], False)
sketch13.addConstraint([
    Sketcher.Constraint("Tangent", 0, 1, 1, 2),
    Sketcher.Constraint("Coincident", 1, 1, 2, 1),
    Sketcher.Constraint("Tangent", 2, 2, 3, 2),
    Sketcher.Constraint("Tangent", 3, 1, 4, 2),
    Sketcher.Constraint("Tangent", 4, 1, 5, 1),
    Sketcher.Constraint("Coincident", 5, 2, 0, 2),
    Sketcher.Constraint("Equal", 0, 1),
    Sketcher.Constraint("Equal", 3, 4),
    Sketcher.Constraint("Horizontal", 1, 3, 3, 3),
    Sketcher.Constraint("Horizontal", 4, 3, 0, 1),
    Sketcher.Constraint("Horizontal", 0, 1, 3, 1),
    Sketcher.Constraint("Radius", 0, Q("1 in")),
    Sketcher.Constraint("DistanceX", 1, 3, 3, 3, Q("2 in")),
    Sketcher.Constraint("DistanceY", 0, 1, 5, 2, Q("0.25 in")),
    Sketcher.Constraint("Radius", 3, 12.846432),
    Sketcher.Constraint("Distance", 2, 39.656189),
    Sketcher.Constraint("DistanceX", 0, 3, -1, 1, 81.48505),
    Sketcher.Constraint("DistanceY", 2, 2, -1, 1, 84.226349),
])
pad8 = body8.newObject("PartDesign::Pad", "Pad007")
pad8.Profile = sketch13
pad8.Length = Q("1 in")
body9 = doc.addObject("PartDesign::Body", "Body008")

sketch14 = body9.newObject("Sketcher::SketchObject", "Sketch013")
sketch14.AttachmentSupport = (doc.getObject("XZ_Plane008"), [""])
sketch14.MapMode = "FlatFace"
sketch14.addGeometry([
    Part.ArcOfCircle(Part.Circle(Vector(-30.68505, -71.656274, 0), Vector(0, 0, 1), 12.846432), math.radians(0), math.radians(103.784448)),
    Part.ArcOfCircle(Part.Circle(Vector(-30.68505, -71.656274, 0), Vector(0, 0, 1), 12.846432), math.radians(-78.094056), math.radians(0)),
    Part.LineSegment(Vector(-28.034758, -84.226349, 0), Vector(13.08809, -96.064946, 0)),
    Part.ArcOfCircle(Part.Circle(Vector(20.114948, -71.656274, 0), Vector(0, 0, 1), 25.4), math.radians(180), math.radians(253.939753)),
    Part.ArcOfCircle(Part.Circle(Vector(20.114948, -71.656274, 0), Vector(0, 0, 1), 25.4), math.radians(104.307628), math.radians(180)),
    Part.LineSegment(Vector(13.837896, -47.04411, 0), Vector(-33.745967, -59.179832, 0)),
], False)
sketch14.addConstraint([
    Sketcher.Constraint("Tangent", 0, 1, 1, 2),
    Sketcher.Constraint("Coincident", 1, 1, 2, 1),
    Sketcher.Constraint("Tangent", 2, 2, 3, 2),
    Sketcher.Constraint("Tangent", 3, 1, 4, 2),
    Sketcher.Constraint("Tangent", 4, 1, 5, 1),
    Sketcher.Constraint("Coincident", 5, 2, 0, 2),
    Sketcher.Constraint("Equal", 0, 1),
    Sketcher.Constraint("Equal", 3, 4),
    Sketcher.Constraint("Horizontal", 1, 3, 3, 3),
    Sketcher.Constraint("Horizontal", 4, 3, 0, 1),
    Sketcher.Constraint("Horizontal", 0, 1, 3, 1),
    Sketcher.Constraint("Radius", 3, Q("1 in")),
    Sketcher.Constraint("DistanceX", 0, 3, 3, 3, Q("1.9999999 in")),
    Sketcher.Constraint("Radius", 0, 12.846432),
    Sketcher.Constraint("Distance", 2, 42.793001),
    Sketcher.Constraint("DistanceX", 0, 3, -1, 1, 30.68505),
    Sketcher.Constraint("DistanceY", 1, 1, -1, 1, 84.226349),
    Sketcher.Constraint("DistanceX", 5, 2, 0, 1, 15.90735),
])
pad9 = body9.newObject("PartDesign::Pad", "Pad008")
pad9.Profile = sketch14
pad9.Length = Q("1 in")

doc.recompute()
